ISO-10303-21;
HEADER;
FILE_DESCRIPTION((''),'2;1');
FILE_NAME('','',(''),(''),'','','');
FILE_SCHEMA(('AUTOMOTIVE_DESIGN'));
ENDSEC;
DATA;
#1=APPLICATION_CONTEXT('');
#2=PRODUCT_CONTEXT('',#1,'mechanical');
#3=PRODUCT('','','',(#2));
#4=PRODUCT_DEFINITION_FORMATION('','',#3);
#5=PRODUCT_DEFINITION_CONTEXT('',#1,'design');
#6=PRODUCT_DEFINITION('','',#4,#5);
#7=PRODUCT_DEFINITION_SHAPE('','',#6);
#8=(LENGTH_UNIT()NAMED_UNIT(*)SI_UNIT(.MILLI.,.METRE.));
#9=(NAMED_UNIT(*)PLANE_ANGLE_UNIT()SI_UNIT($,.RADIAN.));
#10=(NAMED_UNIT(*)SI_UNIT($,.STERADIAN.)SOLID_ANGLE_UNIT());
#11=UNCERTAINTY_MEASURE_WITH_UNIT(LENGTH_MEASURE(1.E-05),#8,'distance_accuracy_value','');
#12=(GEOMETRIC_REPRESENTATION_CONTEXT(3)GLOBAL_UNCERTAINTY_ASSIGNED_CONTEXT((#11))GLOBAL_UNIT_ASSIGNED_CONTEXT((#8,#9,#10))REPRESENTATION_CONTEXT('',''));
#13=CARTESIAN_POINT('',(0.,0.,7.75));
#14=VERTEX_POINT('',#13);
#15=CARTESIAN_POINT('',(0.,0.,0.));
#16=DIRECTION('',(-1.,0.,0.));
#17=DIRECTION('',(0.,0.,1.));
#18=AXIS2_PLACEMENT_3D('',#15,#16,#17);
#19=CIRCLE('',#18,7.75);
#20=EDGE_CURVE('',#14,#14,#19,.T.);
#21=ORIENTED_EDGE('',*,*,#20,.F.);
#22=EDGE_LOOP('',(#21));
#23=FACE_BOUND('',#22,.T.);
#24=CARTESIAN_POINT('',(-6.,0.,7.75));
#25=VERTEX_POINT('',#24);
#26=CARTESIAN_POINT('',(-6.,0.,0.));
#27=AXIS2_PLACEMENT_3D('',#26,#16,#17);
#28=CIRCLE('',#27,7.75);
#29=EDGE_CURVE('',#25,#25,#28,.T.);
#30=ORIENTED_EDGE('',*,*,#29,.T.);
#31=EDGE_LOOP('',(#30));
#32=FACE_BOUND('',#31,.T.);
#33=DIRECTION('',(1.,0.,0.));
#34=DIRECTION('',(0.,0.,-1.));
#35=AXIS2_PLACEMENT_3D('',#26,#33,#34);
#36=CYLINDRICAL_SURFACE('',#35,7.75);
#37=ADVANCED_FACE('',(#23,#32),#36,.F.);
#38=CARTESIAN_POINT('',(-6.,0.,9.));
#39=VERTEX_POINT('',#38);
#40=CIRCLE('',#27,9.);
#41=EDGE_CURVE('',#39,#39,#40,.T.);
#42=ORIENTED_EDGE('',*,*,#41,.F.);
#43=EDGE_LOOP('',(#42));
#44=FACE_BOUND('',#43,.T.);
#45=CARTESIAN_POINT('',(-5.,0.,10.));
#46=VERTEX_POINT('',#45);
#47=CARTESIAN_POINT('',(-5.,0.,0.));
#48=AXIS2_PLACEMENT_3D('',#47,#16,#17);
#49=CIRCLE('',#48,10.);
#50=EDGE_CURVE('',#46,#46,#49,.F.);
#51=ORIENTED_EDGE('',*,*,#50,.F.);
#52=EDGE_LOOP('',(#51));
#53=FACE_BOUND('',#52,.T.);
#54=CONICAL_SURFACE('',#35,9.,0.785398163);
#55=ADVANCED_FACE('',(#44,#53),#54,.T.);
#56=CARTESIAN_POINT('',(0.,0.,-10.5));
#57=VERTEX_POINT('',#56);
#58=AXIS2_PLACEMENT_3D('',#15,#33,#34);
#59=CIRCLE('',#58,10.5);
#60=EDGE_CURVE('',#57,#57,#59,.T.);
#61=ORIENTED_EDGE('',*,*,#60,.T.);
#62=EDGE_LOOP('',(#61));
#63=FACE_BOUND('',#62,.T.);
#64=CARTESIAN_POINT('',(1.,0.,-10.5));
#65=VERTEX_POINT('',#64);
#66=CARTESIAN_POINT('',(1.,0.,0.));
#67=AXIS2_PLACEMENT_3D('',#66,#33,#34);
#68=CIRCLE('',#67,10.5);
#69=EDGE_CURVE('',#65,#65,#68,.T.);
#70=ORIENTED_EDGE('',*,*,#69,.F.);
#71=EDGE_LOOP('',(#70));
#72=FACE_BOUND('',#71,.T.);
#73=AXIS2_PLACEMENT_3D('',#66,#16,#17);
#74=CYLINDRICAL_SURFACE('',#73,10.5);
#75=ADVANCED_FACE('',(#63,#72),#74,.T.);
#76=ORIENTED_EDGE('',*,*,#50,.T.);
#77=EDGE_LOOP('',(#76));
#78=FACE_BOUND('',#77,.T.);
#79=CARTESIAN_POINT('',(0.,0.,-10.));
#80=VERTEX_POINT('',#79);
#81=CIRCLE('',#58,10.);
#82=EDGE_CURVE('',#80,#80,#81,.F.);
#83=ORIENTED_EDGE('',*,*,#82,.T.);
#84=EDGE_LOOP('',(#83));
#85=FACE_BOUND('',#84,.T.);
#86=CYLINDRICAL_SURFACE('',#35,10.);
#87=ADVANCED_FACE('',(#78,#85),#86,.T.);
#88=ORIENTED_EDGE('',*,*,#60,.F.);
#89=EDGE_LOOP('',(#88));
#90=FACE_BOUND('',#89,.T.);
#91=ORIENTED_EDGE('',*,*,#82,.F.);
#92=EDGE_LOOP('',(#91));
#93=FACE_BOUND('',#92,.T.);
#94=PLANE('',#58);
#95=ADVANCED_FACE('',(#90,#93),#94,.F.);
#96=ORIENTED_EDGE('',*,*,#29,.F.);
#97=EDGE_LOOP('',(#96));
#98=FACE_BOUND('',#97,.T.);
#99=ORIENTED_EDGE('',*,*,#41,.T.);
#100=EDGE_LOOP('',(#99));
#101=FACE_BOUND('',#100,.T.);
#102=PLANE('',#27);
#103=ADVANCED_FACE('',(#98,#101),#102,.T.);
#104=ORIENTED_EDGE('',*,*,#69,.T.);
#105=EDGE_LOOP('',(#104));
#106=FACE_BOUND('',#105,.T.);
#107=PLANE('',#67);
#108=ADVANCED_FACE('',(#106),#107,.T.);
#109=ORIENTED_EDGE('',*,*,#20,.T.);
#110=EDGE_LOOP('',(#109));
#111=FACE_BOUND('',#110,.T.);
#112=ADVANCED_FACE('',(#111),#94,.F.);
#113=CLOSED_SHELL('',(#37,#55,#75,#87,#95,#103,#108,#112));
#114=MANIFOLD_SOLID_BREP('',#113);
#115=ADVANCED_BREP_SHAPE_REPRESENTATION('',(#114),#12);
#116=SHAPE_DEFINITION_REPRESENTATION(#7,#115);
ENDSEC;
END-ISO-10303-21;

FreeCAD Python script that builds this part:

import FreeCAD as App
import Part
import Sketcher

V = App.Vector
Q = App.Units.Quantity


def edges_at(feature, points):
    """Names of the edges that pass closest to the given points."""
    edges = feature.Shape.Edges
    near = lambda p: min(range(len(edges)), key=lambda i: edges[i].distToShape(Part.Vertex(*p))[0])
    return sorted({f"Edge{near(p) + 1}" for p in points})

doc = App.newDocument("Part")
body = doc.addObject("PartDesign::Body", "Body")

sketch1 = doc.addObject("Sketcher::SketchObject", "Sketch")
body.addObject(sketch1)
sketch1.AttachmentSupport = (doc.YZ_Plane, [""])
sketch1.MapMode = "FlatFace"
sketch1.addGeometry(Part.Circle(V(0, 0, 0), V(0, 0, 1), 10), False)
sketch1.addConstraint([
    Sketcher.Constraint("Coincident", 0, 3, -1, 1),
    Sketcher.Constraint("Diameter", 0, Q("21 mm")),
])
pad1 = doc.addObject("PartDesign::Pad", "Pad")
body.addObject(pad1)
pad1.Profile = sketch1
pad1.Length = 1

sketch2 = doc.addObject("Sketcher::SketchObject", "Sketch001")
body.addObject(sketch2)
sketch2.AttachmentSupport = (doc.YZ_Plane, [""])
sketch2.MapMode = "FlatFace"
sketch2.addGeometry([
    Part.Circle(V(0, 0, 0), V(0, 0, 1), 10),
    Part.Circle(V(0, 0, 0), V(0, 0, 1), 8),
], False)
sketch2.addConstraint([
    Sketcher.Constraint("Coincident", 0, 3, -1, 1),
    Sketcher.Constraint("Coincident", 1, 3, -1, 1),
    Sketcher.Constraint("Diameter", 0, Q("20 mm")),
    Sketcher.Constraint("Diameter", 1, Q("15.5 mm")),
])
pad2 = doc.addObject("PartDesign::Pad", "Pad001")
body.addObject(pad2)
pad2.Profile = sketch2
pad2.Length = 6
pad2.Reversed = True
doc.recompute()

chamfer = doc.addObject("PartDesign::Chamfer", "Chamfer")
body.addObject(chamfer)
chamfer.Base = (pad2, edges_at(pad2, [(-6, 0, 10)]))
chamfer.Size = 1

doc.recompute()
